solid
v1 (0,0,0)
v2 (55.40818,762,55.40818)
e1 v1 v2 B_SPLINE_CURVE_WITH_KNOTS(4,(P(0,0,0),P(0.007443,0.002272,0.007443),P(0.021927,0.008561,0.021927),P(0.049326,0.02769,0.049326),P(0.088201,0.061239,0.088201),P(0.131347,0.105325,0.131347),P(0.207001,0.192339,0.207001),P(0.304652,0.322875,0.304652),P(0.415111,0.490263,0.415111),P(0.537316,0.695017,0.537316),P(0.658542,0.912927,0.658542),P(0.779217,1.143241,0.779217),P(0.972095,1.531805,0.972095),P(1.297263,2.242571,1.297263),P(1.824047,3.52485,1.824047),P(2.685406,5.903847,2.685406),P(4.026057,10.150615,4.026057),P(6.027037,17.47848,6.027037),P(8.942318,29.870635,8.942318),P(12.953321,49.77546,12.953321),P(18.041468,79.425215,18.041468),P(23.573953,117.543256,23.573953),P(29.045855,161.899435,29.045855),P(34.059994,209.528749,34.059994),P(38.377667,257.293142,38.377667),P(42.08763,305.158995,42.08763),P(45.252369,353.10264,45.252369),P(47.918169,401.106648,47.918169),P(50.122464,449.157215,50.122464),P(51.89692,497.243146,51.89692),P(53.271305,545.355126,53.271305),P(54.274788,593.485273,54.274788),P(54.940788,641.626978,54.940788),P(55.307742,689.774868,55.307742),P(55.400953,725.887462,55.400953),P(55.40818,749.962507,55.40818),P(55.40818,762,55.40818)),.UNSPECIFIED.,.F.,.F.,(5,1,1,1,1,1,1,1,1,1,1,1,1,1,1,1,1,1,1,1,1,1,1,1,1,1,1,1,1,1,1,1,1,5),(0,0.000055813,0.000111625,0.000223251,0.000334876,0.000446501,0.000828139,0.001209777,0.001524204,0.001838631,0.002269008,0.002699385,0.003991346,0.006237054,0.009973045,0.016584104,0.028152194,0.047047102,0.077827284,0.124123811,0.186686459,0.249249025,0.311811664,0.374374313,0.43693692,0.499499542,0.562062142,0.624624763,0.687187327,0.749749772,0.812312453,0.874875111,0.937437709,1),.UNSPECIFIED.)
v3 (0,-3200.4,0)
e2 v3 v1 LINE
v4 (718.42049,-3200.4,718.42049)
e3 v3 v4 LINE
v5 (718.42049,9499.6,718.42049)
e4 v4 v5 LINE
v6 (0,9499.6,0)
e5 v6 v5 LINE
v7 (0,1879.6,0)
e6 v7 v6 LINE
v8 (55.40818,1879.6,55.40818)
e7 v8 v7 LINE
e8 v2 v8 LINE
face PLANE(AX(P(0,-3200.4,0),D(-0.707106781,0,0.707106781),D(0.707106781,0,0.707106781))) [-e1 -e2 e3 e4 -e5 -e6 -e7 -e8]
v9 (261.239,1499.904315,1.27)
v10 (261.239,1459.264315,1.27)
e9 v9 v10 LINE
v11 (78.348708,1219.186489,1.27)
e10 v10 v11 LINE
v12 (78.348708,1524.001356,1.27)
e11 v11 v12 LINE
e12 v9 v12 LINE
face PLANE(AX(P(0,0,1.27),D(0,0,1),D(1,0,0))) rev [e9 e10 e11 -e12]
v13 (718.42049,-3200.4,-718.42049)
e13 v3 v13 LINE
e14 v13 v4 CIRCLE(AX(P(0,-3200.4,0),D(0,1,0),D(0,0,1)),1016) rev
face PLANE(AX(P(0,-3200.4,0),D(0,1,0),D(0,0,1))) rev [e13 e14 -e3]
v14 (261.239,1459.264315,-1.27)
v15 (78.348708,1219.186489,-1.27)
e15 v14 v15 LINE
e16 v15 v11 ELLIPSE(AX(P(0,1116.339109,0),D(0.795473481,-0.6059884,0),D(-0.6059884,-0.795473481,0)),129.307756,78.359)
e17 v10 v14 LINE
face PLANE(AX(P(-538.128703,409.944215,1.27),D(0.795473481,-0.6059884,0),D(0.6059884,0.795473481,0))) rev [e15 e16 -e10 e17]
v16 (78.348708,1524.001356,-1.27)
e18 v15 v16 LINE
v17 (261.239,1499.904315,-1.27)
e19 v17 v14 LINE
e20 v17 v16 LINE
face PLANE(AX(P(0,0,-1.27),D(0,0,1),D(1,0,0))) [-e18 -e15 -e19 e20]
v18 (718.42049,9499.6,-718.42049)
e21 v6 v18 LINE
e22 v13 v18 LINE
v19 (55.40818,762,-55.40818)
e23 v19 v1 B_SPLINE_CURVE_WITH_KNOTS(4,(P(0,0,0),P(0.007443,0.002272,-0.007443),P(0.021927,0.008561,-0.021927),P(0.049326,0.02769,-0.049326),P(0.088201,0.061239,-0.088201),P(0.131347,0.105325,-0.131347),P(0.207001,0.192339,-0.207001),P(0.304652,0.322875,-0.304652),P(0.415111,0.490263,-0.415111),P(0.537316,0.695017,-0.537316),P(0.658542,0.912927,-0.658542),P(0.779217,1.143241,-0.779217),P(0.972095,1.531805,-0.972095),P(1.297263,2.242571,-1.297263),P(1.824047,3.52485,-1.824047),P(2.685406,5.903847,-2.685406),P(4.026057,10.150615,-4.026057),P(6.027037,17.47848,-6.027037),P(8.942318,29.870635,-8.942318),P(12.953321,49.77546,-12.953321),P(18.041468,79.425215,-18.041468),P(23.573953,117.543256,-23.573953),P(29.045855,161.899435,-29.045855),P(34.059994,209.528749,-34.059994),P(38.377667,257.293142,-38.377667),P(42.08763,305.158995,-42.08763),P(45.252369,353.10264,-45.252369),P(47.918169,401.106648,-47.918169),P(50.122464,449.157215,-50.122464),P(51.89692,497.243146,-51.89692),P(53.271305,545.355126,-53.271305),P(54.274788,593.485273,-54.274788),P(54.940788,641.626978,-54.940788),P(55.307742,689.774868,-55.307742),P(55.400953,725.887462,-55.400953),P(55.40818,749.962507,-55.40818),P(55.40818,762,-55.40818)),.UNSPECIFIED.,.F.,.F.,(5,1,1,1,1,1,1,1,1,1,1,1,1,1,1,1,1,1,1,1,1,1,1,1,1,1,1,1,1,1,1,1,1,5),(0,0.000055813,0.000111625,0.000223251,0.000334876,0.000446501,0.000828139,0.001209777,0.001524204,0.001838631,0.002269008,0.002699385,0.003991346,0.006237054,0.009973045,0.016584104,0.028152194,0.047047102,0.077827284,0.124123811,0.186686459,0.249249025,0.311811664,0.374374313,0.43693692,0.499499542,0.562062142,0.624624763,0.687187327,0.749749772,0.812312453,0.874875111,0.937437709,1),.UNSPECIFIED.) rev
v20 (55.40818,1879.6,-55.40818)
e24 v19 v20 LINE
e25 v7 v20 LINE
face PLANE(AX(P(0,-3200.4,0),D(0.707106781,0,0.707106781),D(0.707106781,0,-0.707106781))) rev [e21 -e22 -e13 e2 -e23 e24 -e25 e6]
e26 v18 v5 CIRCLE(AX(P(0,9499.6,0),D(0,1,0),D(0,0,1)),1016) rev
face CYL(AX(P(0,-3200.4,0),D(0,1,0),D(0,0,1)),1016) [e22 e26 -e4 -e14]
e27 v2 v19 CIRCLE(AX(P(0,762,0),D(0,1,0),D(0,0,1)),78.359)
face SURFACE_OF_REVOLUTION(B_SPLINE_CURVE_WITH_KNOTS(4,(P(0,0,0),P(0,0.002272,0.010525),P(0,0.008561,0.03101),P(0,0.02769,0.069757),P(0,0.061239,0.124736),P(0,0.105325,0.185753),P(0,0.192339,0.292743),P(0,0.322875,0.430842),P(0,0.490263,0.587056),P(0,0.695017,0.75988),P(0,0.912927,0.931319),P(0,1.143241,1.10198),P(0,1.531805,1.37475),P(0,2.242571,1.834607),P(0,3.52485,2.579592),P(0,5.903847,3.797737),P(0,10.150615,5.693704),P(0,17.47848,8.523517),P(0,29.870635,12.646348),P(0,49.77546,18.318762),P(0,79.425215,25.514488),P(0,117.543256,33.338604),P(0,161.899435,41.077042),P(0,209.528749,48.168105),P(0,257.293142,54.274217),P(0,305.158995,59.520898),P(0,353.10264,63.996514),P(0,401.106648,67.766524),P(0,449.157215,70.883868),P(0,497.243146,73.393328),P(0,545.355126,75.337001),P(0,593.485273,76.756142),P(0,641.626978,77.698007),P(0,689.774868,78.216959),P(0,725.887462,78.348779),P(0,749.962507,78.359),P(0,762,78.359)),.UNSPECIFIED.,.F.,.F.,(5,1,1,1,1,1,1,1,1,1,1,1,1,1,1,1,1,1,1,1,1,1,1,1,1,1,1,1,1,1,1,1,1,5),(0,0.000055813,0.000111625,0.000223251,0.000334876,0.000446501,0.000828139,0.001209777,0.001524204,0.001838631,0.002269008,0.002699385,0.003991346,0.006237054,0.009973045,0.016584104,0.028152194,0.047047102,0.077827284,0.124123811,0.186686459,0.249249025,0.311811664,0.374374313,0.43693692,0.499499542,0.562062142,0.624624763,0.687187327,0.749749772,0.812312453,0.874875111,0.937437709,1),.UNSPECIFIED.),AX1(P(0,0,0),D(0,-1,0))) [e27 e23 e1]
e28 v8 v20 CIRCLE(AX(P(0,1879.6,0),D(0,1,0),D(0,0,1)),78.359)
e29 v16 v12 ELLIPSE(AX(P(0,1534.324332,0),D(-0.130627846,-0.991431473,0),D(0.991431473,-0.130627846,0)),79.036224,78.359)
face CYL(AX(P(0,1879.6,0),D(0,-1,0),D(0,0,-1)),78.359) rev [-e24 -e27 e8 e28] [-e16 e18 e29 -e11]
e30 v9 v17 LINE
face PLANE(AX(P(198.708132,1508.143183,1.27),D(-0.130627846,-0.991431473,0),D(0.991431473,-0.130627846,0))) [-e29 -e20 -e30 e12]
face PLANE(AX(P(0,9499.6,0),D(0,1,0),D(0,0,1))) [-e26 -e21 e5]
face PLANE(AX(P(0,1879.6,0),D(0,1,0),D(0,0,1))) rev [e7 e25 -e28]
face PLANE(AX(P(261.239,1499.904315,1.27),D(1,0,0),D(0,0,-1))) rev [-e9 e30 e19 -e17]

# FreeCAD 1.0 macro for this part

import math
import FreeCAD as App
import Part
import Sketcher
Q = App.Units.Quantity

doc = App.newDocument("Part")
body = doc.addObject("PartDesign::Body", "Body")

# Sketch on YZ plane
sketch1 = doc.addObject("Sketcher::SketchObject", "Sketch")
body.addObject(sketch1)
sketch1.AttachmentSupport = (doc.YZ_Plane, [""])
sketch1.MapMode = "FlatFace"
sketch1.addGeometry(Part.BSplineCurve([App.Vector(0, 0, 0), App.Vector(0.002272, 0.010525, 0), App.Vector(0.008561, 0.03101, 0), App.Vector(0.02769, 0.069757, 0), App.Vector(0.061239, 0.124736, 0), App.Vector(0.105325, 0.185753, 0), App.Vector(0.192339, 0.292743, 0), App.Vector(0.322875, 0.430842, 0), App.Vector(0.490263, 0.587056, 0), App.Vector(0.695017, 0.75988, 0), App.Vector(0.912927, 0.931319, 0), App.Vector(1.143241, 1.10198, 0), App.Vector(1.531805, 1.37475, 0), App.Vector(2.242571, 1.834607, 0), App.Vector(3.52485, 2.579592, 0), App.Vector(5.903847, 3.797737, 0), App.Vector(10.150615, 5.693704, 0), App.Vector(17.47848, 8.523517, 0), App.Vector(29.870635, 12.646348, 0), App.Vector(49.77546, 18.318762, 0), App.Vector(79.425215, 25.514488, 0), App.Vector(117.543256, 33.338604, 0), App.Vector(161.899435, 41.077042, 0), App.Vector(209.528749, 48.168105, 0), App.Vector(257.293142, 54.274217, 0), App.Vector(305.158995, 59.520898, 0), App.Vector(353.10264, 63.996514, 0), App.Vector(401.106648, 67.766524, 0), App.Vector(449.157215, 70.883868, 0), App.Vector(497.243146, 73.393328, 0), App.Vector(545.355126, 75.337001, 0), App.Vector(593.485273, 76.756142, 0), App.Vector(641.626978, 77.698007, 0), App.Vector(689.774868, 78.216959, 0), App.Vector(725.887462, 78.348779, 0), App.Vector(749.962507, 78.359, 0), App.Vector(762, 78.359, 0)], [5, 1, 1, 1, 1, 1, 1, 1, 1, 1, 1, 1, 1, 1, 1, 1, 1, 1, 1, 1, 1, 1, 1, 1, 1, 1, 1, 1, 1, 1, 1, 1, 1, 5], [0, 0.000055813, 0.000111625, 0.000223251, 0.000334876, 0.000446501, 0.000828139, 0.001209777, 0.001524204, 0.001838631, 0.002269008, 0.002699385, 0.003991346, 0.006237054, 0.009973045, 0.016584104, 0.028152194, 0.047047102, 0.077827284, 0.124123811, 0.186686459, 0.249249025, 0.311811664, 0.374374313, 0.43693692, 0.499499542, 0.562062142, 0.624624763, 0.687187327, 0.749749772, 0.812312453, 0.874875111, 0.937437709, 1], False, 4, [1, 1, 1, 1, 1, 1, 1, 1, 1, 1, 1, 1, 1, 1, 1, 1, 1, 1, 1, 1, 1, 1, 1, 1, 1, 1, 1, 1, 1, 1, 1, 1, 1, 1, 1, 1, 1], False), False)
sketch1.addGeometry(Part.LineSegment(App.Vector(0, 0, 0), App.Vector(762, 0, 0)), False)
sketch1.addGeometry(Part.LineSegment(App.Vector(762, 0, 0), App.Vector(762, 78.359, 0)), False)
sketch1.addConstraint(Sketcher.Constraint("Block", 0))
sketch1.addConstraint(Sketcher.Constraint("Coincident", 0, 1, 1, 1))
sketch1.addConstraint(Sketcher.Constraint("Coincident", 1, 2, 2, 1))
sketch1.addConstraint(Sketcher.Constraint("Coincident", 2, 2, 0, 2))
sketch1.addConstraint(Sketcher.Constraint("Horizontal", 1))
sketch1.addConstraint(Sketcher.Constraint("Vertical", 2))
revolution = doc.addObject("PartDesign::Revolution", "Revolution")
body.addObject(revolution)
revolution.Profile = sketch1
revolution.ReferenceAxis = (sketch1, ["H_Axis"])
revolution.Angle = 360

# Sketch on XZ plane
sketch2 = doc.addObject("Sketcher::SketchObject", "Sketch001")
body.addObject(sketch2)
sketch2.AttachmentSupport = (doc.XZ_Plane, [""])
sketch2.MapMode = "FlatFace"
sketch2.AttachmentOffset = App.Placement(App.Vector(0, 0, -30 * 25.4), App.Rotation())
sketch2.addGeometry(Part.Circle(App.Vector(0, 0, 0), App.Vector(0, 0, 1), 78), False)
sketch2.addConstraint(Sketcher.Constraint("Coincident", 0, 3, -1, 1))
sketch2.addConstraint(Sketcher.Constraint("Diameter", 0, Q("6.17 in")))
pad1 = doc.addObject("PartDesign::Pad", "Pad")
body.addObject(pad1)
pad1.Profile = sketch2
pad1.Length = Q("44 in")
pad1.Reversed = True

# Sketch on XZ plane
sketch3 = doc.addObject("Sketcher::SketchObject", "Sketch002")
body.addObject(sketch3)
sketch3.AttachmentSupport = (doc.XZ_Plane, [""])
sketch3.MapMode = "FlatFace"
sketch3.AttachmentOffset = App.Placement(App.Vector(0, 0, -74 * 25.4), App.Rotation())
sketch3.addGeometry(Part.LineSegment(App.Vector(55, 55, 0), App.Vector(0, 0, 0)), False)
sketch3.addGeometry(Part.LineSegment(App.Vector(0, 0, 0), App.Vector(55, -55, 0)), False)
sketch3.addGeometry(Part.ArcOfCircle(Part.Circle(App.Vector(0, 0, 0), App.Vector(0, 0, 1), 78), math.radians(45), math.radians(315)), False)
sketch3.addConstraint(Sketcher.Constraint("Coincident", 0, 2, 1, 1))
sketch3.addConstraint(Sketcher.Constraint("Coincident", 1, 2, 2, 2))
sketch3.addConstraint(Sketcher.Constraint("Coincident", 2, 1, 0, 1))
sketch3.addConstraint(Sketcher.Constraint("Coincident", 2, 3, -1, 1))
sketch3.addConstraint(Sketcher.Constraint("Coincident", 0, 2, -1, 1))
sketch3.addConstraint(Sketcher.Constraint("Perpendicular", 0, 1))
sketch3.addConstraint(Sketcher.Constraint("Vertical", 1, 2, 2, 1))
sketch3.addConstraint(Sketcher.Constraint("Radius", 2, Q("3.085 in")))
pocket1 = doc.addObject("PartDesign::Pocket", "Pocket")
body.addObject(pocket1)
pocket1.Profile = sketch3
pocket1.Type = "ThroughAll"
pocket1.Reversed = True

# Sketch on XY plane
sketch4 = doc.addObject("Sketcher::SketchObject", "Sketch003")
body.addObject(sketch4)
sketch4.AttachmentSupport = (doc.XY_Plane, [""])
sketch4.MapMode = "FlatFace"
sketch4.addGeometry(Part.LineSegment(App.Vector(55.4, 1219.2, 0), App.Vector(55.4, 1189.1, 0)), False)
sketch4.addGeometry(Part.LineSegment(App.Vector(55.4, 1189.1, 0), App.Vector(78.4, 1219.2, 0)), False)
sketch4.addGeometry(Part.LineSegment(App.Vector(78.4, 1219.2, 0), App.Vector(261.2, 1459.3, 0)), False)
sketch4.addGeometry(Part.LineSegment(App.Vector(261.2, 1459.3, 0), App.Vector(261.2, 1499.9, 0)), False)
sketch4.addGeometry(Part.LineSegment(App.Vector(261.2, 1499.9, 0), App.Vector(78.4, 1524, 0)), False)
sketch4.addGeometry(Part.LineSegment(App.Vector(78.4, 1524, 0), App.Vector(55.4, 1527, 0)), False)
sketch4.addGeometry(Part.LineSegment(App.Vector(55.4, 1527, 0), App.Vector(55.4, 1524, 0)), False)
sketch4.addGeometry(Part.LineSegment(App.Vector(55.4, 1524, 0), App.Vector(53, 1524, 0)), False)
sketch4.addGeometry(Part.LineSegment(App.Vector(53, 1524, 0), App.Vector(53, 1219.2, 0)), False)
sketch4.addGeometry(Part.LineSegment(App.Vector(53, 1219.2, 0), App.Vector(55.4, 1219.2, 0)), False)
sketch4.addConstraint(Sketcher.Constraint("Coincident", 0, 2, 1, 1))
sketch4.addConstraint(Sketcher.Constraint("Coincident", 1, 2, 2, 1))
sketch4.addConstraint(Sketcher.Constraint("Coincident", 2, 2, 3, 1))
sketch4.addConstraint(Sketcher.Constraint("Coincident", 3, 2, 4, 1))
sketch4.addConstraint(Sketcher.Constraint("Coincident", 4, 2, 5, 1))
sketch4.addConstraint(Sketcher.Constraint("Coincident", 5, 2, 6, 1))
sketch4.addConstraint(Sketcher.Constraint("Coincident", 6, 2, 7, 1))
sketch4.addConstraint(Sketcher.Constraint("Coincident", 7, 2, 8, 1))
sketch4.addConstraint(Sketcher.Constraint("Coincident", 8, 2, 9, 1))
sketch4.addConstraint(Sketcher.Constraint("Coincident", 9, 2, 0, 1))
sketch4.addConstraint(Sketcher.Constraint("Vertical", 0))
sketch4.addConstraint(Sketcher.Constraint("Vertical", 3))
sketch4.addConstraint(Sketcher.Constraint("Vertical", 6))
sketch4.addConstraint(Sketcher.Constraint("Horizontal", 7))
sketch4.addConstraint(Sketcher.Constraint("Vertical", 8))
sketch4.addConstraint(Sketcher.Constraint("Horizontal", 9))
sketch4.addConstraint(Sketcher.Constraint("Parallel", 1, 2))
sketch4.addConstraint(Sketcher.Constraint("Parallel", 4, 5))
sketch4.addConstraint(Sketcher.Constraint("Horizontal", 4, 2, 6, 2))
sketch4.addConstraint(Sketcher.Constraint("Horizontal", 1, 2, 8, 2))
sketch4.addConstraint(Sketcher.Constraint("Vertical", 1, 2, 4, 2))
sketch4.addConstraint(Sketcher.Constraint("Vertical", 0, 2, 5, 2))
sketch4.addConstraint(Sketcher.Constraint("DistanceY", 8, 2, 8, 1, Q("12 in")))
sketch4.addConstraint(Sketcher.Constraint("DistanceY", 3, 1, 3, 2, Q("1.6 in")))
sketch4.addConstraint(Sketcher.Constraint("DistanceY", -1, 1, 1, 2, Q("48 in")))
sketch4.addConstraint(Sketcher.Constraint("DistanceX", 7, 2, 4, 2, Q("1 in")))
sketch4.addConstraint(Sketcher.Constraint("Angle", 1, Q("52.7 deg")))
sketch4.addConstraint(Sketcher.Constraint("DistanceX", 1, 2, 2, 2, Q("7.2 in")))
sketch4.addConstraint(Sketcher.Constraint("DistanceX", -1, 1, 1, 2, Q("3.085 in")))
sketch4.addConstraint(Sketcher.Constraint("DistanceX", 7, 2, 7, 1, 2.44918))
pad2 = doc.addObject("PartDesign::Pad", "Pad001")
body.addObject(pad2)
pad2.Profile = sketch4
pad2.Length = Q("0.1 in")
pad2.Midplane = True
body2 = doc.addObject("PartDesign::Body", "Body001")

# Sketch on XZ plane
sketch5 = doc.addObject("Sketcher::SketchObject", "Sketch004")
body2.addObject(sketch5)
sketch5.AttachmentSupport = (doc.getObject("XZ_Plane001"), [""])
sketch5.MapMode = "FlatFace"
sketch5.AttachmentOffset = App.Placement(App.Vector(0, 0, -74 * 25.4), App.Rotation())
sketch5.addGeometry(Part.ArcOfCircle(Part.Circle(App.Vector(0, 0, 0), App.Vector(0, 0, 1), 1016), math.radians(-45), math.radians(45)), False)
sketch5.addGeometry(Part.LineSegment(App.Vector(718, -718, 0), App.Vector(0, 0, 0)), False)
sketch5.addGeometry(Part.LineSegment(App.Vector(0, 0, 0), App.Vector(718, 718, 0)), False)
sketch5.addConstraint(Sketcher.Constraint("Coincident", 0, 1, 1, 1))
sketch5.addConstraint(Sketcher.Constraint("Coincident", 1, 2, 2, 1))
sketch5.addConstraint(Sketcher.Constraint("Coincident", 2, 2, 0, 2))
sketch5.addConstraint(Sketcher.Constraint("Coincident", 0, 3, -1, 1))
sketch5.addConstraint(Sketcher.Constraint("Coincident", 1, 2, -1, 1))
sketch5.addConstraint(Sketcher.Constraint("Perpendicular", 1, 2))
sketch5.addConstraint(Sketcher.Constraint("Radius", 0, Q("40 in")))
sketch5.addConstraint(Sketcher.Constraint("Angle", 1, Q("135 deg")))
pad3 = doc.addObject("PartDesign::Pad", "Pad002")
body2.addObject(pad3)
pad3.Profile = sketch5
pad3.Type = "TwoLengths"
pad3.Length = Q("300 in")
pad3.Length2 = Q("200 in")
pad3.Reversed = True
doc.recompute()

boolean = doc.addObject("PartDesign::Boolean", "Boolean")
body2.addObject(boolean)
boolean.Type = "Cut"
boolean.addObjects([body])

doc.recompute()
